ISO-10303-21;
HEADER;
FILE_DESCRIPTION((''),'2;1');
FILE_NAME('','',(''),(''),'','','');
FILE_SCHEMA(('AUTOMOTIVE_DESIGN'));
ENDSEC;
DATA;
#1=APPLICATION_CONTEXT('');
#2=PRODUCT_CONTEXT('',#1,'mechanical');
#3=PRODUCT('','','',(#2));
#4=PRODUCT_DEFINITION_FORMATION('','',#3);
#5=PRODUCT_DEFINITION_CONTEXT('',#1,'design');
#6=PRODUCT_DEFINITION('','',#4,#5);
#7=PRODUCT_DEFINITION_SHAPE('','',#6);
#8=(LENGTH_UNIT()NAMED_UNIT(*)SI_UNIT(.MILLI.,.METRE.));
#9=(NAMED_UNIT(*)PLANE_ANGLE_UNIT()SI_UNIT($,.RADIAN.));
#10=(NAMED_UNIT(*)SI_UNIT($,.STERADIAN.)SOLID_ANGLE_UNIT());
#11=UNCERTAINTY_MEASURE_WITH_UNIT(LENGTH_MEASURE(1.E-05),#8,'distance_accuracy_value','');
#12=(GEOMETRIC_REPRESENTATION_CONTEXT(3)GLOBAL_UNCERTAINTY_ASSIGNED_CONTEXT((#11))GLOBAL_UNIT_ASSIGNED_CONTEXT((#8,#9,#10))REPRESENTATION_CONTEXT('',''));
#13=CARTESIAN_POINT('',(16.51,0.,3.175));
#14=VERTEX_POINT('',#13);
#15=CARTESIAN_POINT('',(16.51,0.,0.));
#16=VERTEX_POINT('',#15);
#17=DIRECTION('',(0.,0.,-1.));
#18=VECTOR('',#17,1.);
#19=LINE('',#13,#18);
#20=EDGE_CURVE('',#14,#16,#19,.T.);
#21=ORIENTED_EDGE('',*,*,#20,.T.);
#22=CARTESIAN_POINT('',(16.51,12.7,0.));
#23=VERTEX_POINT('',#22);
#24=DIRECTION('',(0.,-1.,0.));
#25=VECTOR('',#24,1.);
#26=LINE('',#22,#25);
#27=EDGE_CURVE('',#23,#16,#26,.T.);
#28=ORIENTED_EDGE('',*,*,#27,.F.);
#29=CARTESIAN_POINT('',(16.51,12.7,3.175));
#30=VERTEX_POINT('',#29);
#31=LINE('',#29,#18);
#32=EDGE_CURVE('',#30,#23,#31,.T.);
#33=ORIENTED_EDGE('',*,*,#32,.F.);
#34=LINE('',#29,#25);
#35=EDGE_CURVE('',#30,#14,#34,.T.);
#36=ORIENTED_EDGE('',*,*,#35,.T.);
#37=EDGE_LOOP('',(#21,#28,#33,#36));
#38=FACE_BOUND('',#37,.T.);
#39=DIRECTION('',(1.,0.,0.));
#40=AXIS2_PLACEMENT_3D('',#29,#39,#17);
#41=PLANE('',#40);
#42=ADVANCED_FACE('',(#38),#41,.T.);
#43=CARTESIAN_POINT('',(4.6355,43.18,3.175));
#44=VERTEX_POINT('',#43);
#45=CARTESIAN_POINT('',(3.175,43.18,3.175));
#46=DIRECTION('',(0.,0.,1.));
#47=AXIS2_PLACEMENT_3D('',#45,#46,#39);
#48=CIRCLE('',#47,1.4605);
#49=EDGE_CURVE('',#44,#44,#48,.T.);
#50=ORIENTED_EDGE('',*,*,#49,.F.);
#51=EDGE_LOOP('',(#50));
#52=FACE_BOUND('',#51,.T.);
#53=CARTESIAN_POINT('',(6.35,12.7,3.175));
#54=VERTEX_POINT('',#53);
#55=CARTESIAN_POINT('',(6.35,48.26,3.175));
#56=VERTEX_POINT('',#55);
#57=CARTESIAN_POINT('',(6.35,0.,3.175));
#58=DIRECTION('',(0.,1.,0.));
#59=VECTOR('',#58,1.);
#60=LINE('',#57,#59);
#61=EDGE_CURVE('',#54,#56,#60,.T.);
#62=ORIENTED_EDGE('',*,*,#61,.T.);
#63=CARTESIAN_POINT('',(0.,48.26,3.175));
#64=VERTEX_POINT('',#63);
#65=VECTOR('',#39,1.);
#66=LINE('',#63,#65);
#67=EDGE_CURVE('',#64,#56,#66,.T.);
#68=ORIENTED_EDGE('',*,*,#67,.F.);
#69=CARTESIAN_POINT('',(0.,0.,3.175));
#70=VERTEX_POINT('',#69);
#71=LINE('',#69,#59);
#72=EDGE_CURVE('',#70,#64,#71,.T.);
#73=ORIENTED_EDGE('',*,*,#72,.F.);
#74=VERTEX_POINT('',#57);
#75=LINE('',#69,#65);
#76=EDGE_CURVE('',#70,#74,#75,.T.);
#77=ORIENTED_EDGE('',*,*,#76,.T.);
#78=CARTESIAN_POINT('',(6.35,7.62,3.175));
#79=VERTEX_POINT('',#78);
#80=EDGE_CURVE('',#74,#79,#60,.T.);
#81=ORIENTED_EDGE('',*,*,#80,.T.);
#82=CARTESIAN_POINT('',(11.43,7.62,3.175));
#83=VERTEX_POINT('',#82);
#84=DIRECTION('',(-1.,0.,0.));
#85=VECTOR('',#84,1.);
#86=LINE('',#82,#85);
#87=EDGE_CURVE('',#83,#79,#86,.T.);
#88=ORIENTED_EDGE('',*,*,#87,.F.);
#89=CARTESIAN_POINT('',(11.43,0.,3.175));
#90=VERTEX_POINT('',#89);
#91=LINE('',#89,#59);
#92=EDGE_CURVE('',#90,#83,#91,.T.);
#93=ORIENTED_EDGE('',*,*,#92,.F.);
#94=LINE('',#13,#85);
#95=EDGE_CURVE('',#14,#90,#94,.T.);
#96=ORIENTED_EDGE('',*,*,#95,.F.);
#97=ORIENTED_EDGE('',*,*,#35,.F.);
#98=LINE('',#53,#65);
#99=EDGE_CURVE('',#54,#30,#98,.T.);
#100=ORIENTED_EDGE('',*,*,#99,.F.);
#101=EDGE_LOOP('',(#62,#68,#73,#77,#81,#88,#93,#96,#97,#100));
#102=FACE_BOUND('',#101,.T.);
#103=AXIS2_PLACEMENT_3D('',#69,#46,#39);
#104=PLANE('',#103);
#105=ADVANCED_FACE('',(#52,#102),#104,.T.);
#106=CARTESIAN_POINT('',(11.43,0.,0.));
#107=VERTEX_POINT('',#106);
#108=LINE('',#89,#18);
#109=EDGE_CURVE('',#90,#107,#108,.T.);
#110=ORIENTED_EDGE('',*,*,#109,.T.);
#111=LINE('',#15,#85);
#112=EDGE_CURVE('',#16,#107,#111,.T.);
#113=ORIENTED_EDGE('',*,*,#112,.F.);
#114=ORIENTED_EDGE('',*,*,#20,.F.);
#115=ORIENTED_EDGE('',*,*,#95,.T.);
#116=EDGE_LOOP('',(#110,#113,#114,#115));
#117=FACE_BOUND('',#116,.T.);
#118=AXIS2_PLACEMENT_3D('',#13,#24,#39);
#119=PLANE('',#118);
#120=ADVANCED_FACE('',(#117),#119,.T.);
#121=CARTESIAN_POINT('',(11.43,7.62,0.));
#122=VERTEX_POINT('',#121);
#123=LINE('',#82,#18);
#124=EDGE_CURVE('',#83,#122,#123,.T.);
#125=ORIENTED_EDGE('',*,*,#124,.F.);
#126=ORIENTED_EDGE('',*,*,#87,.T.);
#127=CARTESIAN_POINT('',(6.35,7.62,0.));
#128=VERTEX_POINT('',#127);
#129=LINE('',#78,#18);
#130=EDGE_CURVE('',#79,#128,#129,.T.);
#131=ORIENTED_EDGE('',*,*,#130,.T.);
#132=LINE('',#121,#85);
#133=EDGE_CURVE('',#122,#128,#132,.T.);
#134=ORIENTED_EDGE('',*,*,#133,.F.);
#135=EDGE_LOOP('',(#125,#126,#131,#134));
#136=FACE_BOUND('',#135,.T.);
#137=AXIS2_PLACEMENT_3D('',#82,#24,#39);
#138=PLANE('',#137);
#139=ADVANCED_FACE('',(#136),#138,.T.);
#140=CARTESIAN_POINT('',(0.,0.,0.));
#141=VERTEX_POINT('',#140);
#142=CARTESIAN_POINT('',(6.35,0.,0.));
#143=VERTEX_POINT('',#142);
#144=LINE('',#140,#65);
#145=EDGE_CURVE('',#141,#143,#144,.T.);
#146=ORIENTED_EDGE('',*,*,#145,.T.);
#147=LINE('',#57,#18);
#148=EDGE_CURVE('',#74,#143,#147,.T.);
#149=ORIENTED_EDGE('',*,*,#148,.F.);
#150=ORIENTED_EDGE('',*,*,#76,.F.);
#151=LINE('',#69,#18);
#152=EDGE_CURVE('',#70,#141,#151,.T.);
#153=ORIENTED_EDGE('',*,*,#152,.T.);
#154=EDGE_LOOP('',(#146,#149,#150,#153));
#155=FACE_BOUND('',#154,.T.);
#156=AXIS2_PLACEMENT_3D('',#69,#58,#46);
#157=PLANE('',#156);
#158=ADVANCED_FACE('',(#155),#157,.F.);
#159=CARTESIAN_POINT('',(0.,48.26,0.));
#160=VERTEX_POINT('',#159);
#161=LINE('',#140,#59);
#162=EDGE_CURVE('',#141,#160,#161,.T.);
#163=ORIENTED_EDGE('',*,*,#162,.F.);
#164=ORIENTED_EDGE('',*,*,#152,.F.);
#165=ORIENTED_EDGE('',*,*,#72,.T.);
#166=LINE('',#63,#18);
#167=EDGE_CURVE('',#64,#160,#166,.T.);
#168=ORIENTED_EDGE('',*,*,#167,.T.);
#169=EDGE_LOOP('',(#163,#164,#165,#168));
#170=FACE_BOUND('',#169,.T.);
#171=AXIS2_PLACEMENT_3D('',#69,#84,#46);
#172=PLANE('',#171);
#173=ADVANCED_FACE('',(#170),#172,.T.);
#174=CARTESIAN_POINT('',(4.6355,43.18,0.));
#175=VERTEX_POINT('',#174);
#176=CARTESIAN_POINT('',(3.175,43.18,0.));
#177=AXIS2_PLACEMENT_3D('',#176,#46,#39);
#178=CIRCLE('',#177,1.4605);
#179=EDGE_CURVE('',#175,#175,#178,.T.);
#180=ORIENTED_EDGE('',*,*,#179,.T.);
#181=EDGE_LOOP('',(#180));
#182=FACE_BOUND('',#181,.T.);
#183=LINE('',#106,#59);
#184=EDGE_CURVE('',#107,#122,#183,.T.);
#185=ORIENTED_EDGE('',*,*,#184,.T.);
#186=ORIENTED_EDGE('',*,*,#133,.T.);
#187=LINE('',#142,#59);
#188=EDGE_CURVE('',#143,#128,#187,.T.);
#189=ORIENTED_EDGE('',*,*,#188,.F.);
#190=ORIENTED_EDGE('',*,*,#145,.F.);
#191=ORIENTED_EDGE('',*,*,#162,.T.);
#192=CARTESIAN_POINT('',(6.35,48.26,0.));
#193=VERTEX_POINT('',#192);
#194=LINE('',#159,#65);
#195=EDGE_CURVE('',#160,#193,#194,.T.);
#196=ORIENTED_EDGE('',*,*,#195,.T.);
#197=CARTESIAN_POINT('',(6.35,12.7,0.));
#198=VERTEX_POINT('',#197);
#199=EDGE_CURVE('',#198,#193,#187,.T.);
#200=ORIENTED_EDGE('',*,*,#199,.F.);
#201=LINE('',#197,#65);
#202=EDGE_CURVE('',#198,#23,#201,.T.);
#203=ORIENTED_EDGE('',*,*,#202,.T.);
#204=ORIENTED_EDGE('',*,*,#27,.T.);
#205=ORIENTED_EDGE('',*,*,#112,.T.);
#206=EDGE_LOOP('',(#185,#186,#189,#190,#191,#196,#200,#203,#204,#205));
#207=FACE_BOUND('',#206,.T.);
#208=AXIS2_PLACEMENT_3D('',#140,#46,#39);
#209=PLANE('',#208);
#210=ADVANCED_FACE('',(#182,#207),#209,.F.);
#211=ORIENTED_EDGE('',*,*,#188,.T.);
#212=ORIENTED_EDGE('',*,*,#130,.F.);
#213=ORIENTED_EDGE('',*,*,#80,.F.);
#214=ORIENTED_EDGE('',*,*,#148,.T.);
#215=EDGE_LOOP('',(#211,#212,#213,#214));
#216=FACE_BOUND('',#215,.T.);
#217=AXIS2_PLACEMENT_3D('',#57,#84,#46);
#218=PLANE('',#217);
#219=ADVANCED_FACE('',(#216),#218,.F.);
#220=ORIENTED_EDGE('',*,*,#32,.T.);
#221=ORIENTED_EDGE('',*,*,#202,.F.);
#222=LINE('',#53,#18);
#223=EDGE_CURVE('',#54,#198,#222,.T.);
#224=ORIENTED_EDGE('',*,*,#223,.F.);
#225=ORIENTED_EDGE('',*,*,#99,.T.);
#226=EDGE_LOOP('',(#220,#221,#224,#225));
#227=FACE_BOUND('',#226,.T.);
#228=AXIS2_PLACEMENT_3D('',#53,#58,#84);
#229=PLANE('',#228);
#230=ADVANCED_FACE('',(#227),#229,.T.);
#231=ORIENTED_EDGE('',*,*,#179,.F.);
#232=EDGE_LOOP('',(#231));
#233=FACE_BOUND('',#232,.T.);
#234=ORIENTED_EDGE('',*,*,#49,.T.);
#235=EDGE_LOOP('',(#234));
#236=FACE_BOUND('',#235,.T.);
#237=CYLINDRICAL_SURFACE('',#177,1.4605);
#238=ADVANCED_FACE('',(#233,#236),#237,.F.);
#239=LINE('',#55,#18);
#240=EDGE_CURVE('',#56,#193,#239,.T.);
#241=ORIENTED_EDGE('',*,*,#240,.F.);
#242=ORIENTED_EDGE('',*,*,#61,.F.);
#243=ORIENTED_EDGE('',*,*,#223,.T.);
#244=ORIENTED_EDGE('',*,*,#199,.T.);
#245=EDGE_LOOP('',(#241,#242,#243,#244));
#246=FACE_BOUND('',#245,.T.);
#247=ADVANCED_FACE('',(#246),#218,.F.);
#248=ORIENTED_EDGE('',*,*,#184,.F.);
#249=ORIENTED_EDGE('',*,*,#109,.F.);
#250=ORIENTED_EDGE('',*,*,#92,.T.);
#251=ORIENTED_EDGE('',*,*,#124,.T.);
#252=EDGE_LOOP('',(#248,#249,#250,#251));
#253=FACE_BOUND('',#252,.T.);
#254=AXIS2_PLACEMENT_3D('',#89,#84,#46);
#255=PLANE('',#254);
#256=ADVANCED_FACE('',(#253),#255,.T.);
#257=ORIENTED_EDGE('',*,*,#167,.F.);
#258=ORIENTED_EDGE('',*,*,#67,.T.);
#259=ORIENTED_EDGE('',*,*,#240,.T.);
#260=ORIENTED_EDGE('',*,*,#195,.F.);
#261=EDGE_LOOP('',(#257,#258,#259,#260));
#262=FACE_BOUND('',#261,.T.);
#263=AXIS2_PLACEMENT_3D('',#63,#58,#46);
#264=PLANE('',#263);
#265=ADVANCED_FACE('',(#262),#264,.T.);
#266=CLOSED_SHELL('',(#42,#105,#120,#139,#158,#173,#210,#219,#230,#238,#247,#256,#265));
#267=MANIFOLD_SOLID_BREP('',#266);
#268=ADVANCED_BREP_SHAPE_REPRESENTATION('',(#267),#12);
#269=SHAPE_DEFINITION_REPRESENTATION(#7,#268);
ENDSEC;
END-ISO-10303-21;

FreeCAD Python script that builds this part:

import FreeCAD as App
import Part
import Sketcher
from FreeCAD import Vector
Q = App.Units.Quantity


def add_polygon(sketch, points):
    """Adds a closed chain of lines whose ends are joined by coincident constraints."""
    first, n = sketch.GeometryCount, len(points)
    for a, b in zip(points, points[1:] + points[:1]):
        sketch.addGeometry(Part.LineSegment(App.Vector(*a, 0), App.Vector(*b, 0)), False)
    for i in range(n):
        sketch.addConstraint(Sketcher.Constraint("Coincident", first + i, 2, first + (i + 1) % n, 1))

doc = App.newDocument("Part")
params = doc.addObject("Spreadsheet::Sheet", "Params")
for row, (alias, value) in enumerate([
    ("sketch1_height", "1.9 in"),
    ("sketch1_width", "0.25 in"),
    ("pad1_length", "0.125 in"),
    ("sketch2_diameter", "0.115 in"),
    ("sketch3_width", "0.4 in"),
    ("sketch3_height", "0.5 in"),
    ("pad2_length", "0.125 in"),
], start=1):
    params.set(f"A{row}", alias)
    params.set(f"B{row}", "=" + value)
    params.setAlias(f"B{row}", alias)

body = doc.addObject("PartDesign::Body", "Body")

# Sketch on XY plane
sketch1 = body.newObject("Sketcher::SketchObject", "Sketch")
sketch1.AttachmentSupport = (doc.getObject("XY_Plane"), [""])
sketch1.MapMode = "FlatFace"
add_polygon(sketch1, [(0, 48.26), (0, 0), (6.35, 0), (6.35, 48.26)])  # lines 0-3
sketch1.addConstraint(Sketcher.Constraint("Vertical", 0))
sketch1.addConstraint(Sketcher.Constraint("Horizontal", 1))
sketch1.addConstraint(Sketcher.Constraint("Vertical", 2))
sketch1.addConstraint(Sketcher.Constraint("Horizontal", 3))
sketch1.addConstraint(Sketcher.Constraint("Coincident", 0, 2, -1, 1))
sketch1.addConstraint(Sketcher.Constraint("DistanceY", 0, 2, 0, 1, Q("1.9 in")))
sketch1.addConstraint(Sketcher.Constraint("DistanceX", 1, 1, 1, 2, Q("0.25 in")))
sketch1.setExpression("Constraints[9]", "Params.sketch1_height")
sketch1.setExpression("Constraints[10]", "Params.sketch1_width")
pad1 = body.newObject("PartDesign::Pad", "Pad")
pad1.Profile = sketch1
pad1.setExpression("Length", "Params.pad1_length")

# Sketch on XY plane
sketch2 = body.newObject("Sketcher::SketchObject", "Sketch001")
sketch2.AttachmentSupport = (doc.getObject("XY_Plane"), [""])
sketch2.MapMode = "FlatFace"
sketch2.AttachmentOffset = App.Placement(Vector(0, 0, 0.125 * 25.4), App.Rotation())
sketch2.addGeometry(Part.Circle(Vector(3.175, 43.18, 0), Vector(0, 0, 1), 1.4605), False)
sketch2.addConstraint(Sketcher.Constraint("Diameter", 0, Q("0.115 in")))
sketch2.addConstraint(Sketcher.Constraint("DistanceY", -1, 1, 0, 3, Q("1.7 in")))
sketch2.addConstraint(Sketcher.Constraint("DistanceX", -1, 1, 0, 3, Q("0.125 in")))
sketch2.setExpression("Constraints[0]", "Params.sketch2_diameter")
pocket1 = body.newObject("PartDesign::Pocket", "Pocket")
pocket1.Profile = sketch2
pocket1.Type = "ThroughAll"

# Sketch on XY plane
sketch3 = body.newObject("Sketcher::SketchObject", "Sketch002")
sketch3.AttachmentSupport = (doc.getObject("XY_Plane"), [""])
sketch3.MapMode = "FlatFace"
add_polygon(sketch3, [(6.35, 12.7), (16.51, 12.7), (16.51, 0), (11.43, 0), (11.43, 7.62), (6.35, 7.62)])  # lines 0-5
sketch3.addConstraint(Sketcher.Constraint("Horizontal", 0))
sketch3.addConstraint(Sketcher.Constraint("Vertical", 1))
sketch3.addConstraint(Sketcher.Constraint("Horizontal", 2))
sketch3.addConstraint(Sketcher.Constraint("Vertical", 3))
sketch3.addConstraint(Sketcher.Constraint("Horizontal", 4))
sketch3.addConstraint(Sketcher.Constraint("Vertical", 5))
sketch3.addConstraint(Sketcher.Constraint("PointOnObject", 1, 2, -1))
sketch3.addConstraint(Sketcher.Constraint("Equal", 2, 4))
sketch3.addConstraint(Sketcher.Constraint("Equal", 4, 5))
sketch3.addConstraint(Sketcher.Constraint("DistanceX", 0, 1, 0, 2, Q("0.4 in")))
sketch3.addConstraint(Sketcher.Constraint("DistanceY", 1, 2, 1, 1, Q("0.5 in")))
sketch3.addConstraint(Sketcher.Constraint("DistanceX", -1, 1, 0, 2, Q("0.65 in")))
sketch3.setExpression("Constraints[15]", "Params.sketch3_width")
sketch3.setExpression("Constraints[16]", "Params.sketch3_height")
pad2 = body.newObject("PartDesign::Pad", "Pad001")
pad2.Profile = sketch3
pad2.setExpression("Length", "Params.pad2_length")

doc.recompute()
